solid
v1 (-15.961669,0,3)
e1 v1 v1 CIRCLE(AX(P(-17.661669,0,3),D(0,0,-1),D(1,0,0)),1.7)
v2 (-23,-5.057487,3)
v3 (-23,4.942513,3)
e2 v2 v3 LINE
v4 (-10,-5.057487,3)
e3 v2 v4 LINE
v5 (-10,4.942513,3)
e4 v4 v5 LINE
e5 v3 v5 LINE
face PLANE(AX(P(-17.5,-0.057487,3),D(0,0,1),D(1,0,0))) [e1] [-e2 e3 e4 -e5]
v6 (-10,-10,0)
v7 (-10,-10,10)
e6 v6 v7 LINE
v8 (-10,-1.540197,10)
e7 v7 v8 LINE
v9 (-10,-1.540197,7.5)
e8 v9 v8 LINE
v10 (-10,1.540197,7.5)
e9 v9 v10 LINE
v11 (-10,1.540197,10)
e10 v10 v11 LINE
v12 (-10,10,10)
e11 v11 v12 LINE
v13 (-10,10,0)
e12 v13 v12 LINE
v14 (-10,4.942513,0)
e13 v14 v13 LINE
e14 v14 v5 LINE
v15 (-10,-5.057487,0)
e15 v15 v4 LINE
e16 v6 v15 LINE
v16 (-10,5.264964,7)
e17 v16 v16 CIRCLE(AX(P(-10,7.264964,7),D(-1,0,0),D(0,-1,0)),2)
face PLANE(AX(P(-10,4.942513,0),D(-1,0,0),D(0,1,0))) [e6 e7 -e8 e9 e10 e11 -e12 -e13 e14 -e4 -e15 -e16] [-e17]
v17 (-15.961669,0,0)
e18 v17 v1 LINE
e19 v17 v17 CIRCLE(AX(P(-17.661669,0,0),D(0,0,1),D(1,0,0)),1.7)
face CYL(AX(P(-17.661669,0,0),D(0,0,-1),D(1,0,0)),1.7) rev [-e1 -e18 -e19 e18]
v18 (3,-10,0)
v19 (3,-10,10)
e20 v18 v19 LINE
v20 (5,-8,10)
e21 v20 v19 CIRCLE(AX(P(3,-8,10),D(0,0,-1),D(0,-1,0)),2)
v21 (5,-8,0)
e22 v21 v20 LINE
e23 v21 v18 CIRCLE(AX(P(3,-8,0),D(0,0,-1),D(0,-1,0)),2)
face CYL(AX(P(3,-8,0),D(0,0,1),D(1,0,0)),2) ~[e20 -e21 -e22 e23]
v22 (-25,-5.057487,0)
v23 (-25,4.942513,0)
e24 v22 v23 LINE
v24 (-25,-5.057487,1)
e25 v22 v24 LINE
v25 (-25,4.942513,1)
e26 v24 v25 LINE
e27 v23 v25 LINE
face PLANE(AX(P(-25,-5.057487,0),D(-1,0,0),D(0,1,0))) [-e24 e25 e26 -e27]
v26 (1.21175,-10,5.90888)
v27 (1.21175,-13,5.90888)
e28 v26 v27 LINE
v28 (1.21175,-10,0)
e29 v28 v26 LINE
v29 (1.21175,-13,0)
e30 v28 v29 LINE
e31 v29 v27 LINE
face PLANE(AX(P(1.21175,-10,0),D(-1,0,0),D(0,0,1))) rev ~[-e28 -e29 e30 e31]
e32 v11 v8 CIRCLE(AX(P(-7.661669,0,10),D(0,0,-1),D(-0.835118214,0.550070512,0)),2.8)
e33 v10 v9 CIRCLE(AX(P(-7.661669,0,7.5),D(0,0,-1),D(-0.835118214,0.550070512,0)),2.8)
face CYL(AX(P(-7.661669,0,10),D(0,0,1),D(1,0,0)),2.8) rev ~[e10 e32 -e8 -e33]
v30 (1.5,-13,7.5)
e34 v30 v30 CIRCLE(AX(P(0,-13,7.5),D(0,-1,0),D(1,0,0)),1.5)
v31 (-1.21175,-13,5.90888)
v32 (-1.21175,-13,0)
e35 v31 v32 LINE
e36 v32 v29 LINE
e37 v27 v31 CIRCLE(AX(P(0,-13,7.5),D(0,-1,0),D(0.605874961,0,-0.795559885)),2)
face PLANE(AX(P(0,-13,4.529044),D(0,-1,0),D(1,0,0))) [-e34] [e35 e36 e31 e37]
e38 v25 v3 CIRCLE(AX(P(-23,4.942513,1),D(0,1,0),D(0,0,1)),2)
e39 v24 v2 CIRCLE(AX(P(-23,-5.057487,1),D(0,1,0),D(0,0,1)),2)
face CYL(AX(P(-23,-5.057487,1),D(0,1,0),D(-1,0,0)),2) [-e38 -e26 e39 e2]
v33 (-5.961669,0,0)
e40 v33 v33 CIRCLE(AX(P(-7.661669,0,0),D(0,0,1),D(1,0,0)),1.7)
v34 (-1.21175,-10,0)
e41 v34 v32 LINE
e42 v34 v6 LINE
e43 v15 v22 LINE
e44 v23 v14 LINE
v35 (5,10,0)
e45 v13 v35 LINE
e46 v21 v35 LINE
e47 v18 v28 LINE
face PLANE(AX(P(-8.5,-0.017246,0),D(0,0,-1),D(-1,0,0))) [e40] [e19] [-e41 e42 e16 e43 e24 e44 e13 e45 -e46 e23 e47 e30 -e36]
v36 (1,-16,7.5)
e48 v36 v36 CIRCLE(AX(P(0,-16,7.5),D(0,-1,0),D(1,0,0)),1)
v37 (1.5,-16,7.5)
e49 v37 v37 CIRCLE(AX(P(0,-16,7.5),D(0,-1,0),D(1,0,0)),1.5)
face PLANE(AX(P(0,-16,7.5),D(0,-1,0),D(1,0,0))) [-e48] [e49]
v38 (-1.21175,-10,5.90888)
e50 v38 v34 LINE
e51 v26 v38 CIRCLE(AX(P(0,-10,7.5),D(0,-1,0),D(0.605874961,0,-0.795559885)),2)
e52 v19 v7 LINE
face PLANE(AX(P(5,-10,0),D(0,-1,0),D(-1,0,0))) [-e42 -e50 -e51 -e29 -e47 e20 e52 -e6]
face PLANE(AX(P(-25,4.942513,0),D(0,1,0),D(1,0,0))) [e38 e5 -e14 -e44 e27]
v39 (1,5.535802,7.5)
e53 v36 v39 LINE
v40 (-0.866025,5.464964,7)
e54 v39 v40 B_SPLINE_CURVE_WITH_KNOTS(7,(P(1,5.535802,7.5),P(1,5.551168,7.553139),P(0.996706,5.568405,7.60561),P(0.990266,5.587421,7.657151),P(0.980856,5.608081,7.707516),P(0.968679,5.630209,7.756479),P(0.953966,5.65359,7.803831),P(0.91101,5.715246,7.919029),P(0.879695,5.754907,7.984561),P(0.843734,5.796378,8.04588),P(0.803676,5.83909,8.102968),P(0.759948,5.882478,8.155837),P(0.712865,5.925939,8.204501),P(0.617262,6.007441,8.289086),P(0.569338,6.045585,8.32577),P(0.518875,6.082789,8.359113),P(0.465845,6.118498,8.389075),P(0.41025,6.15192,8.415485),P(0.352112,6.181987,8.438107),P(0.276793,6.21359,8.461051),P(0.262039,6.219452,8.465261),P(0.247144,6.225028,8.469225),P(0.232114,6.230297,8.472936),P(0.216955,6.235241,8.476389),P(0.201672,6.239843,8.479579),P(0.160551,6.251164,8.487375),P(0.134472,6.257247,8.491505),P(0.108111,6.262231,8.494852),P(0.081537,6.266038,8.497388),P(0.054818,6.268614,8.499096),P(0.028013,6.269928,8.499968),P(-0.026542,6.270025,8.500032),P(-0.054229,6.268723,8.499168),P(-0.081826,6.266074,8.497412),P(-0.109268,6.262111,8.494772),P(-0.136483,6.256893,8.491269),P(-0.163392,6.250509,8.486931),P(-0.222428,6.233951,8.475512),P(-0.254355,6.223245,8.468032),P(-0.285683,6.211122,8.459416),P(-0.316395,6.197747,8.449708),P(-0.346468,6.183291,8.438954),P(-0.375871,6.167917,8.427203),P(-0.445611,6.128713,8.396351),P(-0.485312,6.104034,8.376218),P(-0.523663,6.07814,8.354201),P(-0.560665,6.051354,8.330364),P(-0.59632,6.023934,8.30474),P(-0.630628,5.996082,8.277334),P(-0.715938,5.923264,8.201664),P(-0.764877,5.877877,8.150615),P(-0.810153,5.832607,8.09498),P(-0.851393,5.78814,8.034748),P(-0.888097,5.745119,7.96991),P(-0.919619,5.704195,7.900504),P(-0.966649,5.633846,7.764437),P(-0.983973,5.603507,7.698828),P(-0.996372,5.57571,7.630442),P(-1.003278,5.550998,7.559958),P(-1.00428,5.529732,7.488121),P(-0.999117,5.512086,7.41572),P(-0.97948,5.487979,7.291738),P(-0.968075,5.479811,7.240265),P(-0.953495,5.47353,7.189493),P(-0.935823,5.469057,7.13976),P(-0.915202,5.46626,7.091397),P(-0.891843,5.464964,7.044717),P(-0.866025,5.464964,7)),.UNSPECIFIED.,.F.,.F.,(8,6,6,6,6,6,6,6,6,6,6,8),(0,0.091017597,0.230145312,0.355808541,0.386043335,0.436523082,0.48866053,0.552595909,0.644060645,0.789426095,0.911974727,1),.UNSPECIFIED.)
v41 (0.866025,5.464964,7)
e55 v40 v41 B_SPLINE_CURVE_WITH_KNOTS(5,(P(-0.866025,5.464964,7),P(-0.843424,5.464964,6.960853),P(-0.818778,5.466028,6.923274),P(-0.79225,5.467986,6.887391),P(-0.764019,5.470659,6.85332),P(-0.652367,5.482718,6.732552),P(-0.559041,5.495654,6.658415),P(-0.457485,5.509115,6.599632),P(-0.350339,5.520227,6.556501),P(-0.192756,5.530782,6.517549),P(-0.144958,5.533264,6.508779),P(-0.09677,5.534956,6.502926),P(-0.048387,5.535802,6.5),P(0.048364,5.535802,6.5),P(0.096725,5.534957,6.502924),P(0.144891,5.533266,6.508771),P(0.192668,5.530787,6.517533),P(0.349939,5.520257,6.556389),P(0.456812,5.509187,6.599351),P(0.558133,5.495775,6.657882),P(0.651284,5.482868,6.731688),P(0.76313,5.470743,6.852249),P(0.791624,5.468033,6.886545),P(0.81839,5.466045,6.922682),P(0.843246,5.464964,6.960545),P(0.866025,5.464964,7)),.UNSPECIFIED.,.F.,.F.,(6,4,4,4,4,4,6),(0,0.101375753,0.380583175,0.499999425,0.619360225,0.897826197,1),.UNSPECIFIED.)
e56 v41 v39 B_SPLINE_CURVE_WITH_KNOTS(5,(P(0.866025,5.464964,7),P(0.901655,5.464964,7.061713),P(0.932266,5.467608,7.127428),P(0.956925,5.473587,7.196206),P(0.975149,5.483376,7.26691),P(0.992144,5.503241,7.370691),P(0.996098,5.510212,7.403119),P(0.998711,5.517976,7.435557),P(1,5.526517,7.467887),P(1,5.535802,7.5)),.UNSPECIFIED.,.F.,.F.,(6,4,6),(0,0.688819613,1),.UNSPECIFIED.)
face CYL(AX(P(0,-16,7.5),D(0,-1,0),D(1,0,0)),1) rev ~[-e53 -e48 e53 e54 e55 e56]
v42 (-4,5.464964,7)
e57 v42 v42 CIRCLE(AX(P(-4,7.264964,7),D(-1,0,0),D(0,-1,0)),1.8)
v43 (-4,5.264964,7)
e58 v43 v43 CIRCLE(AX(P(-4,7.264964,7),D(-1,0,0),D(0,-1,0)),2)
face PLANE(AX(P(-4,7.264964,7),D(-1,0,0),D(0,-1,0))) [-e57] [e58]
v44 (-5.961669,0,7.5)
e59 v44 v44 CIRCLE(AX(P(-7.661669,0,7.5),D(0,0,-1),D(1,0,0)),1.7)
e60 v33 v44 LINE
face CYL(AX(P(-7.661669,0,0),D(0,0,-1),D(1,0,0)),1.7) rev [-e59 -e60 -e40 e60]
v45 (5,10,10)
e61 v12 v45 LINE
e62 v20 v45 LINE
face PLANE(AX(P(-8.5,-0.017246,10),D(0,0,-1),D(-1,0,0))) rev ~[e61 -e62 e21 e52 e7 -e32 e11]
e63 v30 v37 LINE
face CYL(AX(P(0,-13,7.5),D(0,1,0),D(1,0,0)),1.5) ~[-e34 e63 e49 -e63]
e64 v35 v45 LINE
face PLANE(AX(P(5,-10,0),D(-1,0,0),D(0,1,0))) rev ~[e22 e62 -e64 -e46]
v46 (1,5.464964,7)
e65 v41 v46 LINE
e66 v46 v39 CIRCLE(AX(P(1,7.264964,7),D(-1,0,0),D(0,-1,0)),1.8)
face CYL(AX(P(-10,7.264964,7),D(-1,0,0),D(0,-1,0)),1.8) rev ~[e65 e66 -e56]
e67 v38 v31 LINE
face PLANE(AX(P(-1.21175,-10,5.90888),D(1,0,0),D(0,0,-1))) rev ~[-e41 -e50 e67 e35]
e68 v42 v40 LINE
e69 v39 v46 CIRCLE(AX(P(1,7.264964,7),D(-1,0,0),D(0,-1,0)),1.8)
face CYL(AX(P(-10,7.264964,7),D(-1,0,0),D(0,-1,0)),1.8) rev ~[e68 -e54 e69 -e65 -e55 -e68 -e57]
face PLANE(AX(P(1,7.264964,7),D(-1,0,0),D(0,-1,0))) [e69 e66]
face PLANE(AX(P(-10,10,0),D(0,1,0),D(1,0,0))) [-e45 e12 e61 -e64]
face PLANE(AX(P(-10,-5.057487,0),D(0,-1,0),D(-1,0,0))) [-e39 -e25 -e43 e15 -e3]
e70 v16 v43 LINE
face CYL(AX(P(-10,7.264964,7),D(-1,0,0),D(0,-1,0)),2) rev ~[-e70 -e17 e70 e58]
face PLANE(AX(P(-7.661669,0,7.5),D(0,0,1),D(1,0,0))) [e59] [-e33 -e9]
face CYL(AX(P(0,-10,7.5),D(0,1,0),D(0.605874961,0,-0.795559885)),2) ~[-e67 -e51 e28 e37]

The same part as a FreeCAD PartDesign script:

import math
import FreeCAD as App
import Part
import Sketcher


def edges_at(feature, points):
    """Names of the edges that pass closest to the given points."""
    edges = feature.Shape.Edges
    near = lambda p: min(range(len(edges)), key=lambda i: edges[i].distToShape(Part.Vertex(*p))[0])
    return sorted({f"Edge{near(p) + 1}" for p in points})

doc = App.newDocument("Part")
params = doc.addObject("Spreadsheet::Sheet", "Params")
for row, (alias, value) in enumerate([
    ("sketch1_diameter", "3.4 mm"),
    ("sketch1_width", "15 mm"),
    ("sketch1_height", "10 mm"),
    ("sketch1_height2", "20 mm"),
    ("pad1_length", "10 mm"),
    ("sketch2_width", "15 mm"),
    ("sketch2_height", "10 mm"),
    ("pocket1_length", "7 mm"),
    ("sketch3_radius", "2 mm"),
    ("pad2_length", "3 mm"),
    ("sketch4_diameter", "5.6 mm"),
    ("pocket2_length", "2.5 mm"),
    ("sketch5_diameter", "3 mm"),
    ("pad3_length", "3 mm"),
    ("sketch6_diameter", "2 mm"),
    ("pocket3_length", "24 mm"),
    ("sketch7_diameter", "3.6 mm"),
    ("pocket4_length", "11 mm"),
    ("sketch8_diameter", "4 mm"),
    ("pocket5_length", "6 mm"),
    ("fillet_radius", "2 mm"),
    ("fillet2_radius", "2 mm"),
], start=1):
    params.set(f"A{row}", alias)
    params.set(f"B{row}", "=" + value)
    params.setAlias(f"B{row}", alias)

body = doc.addObject("PartDesign::Body", "Body")

# Sketch on XY plane
sketch1 = body.newObject("Sketcher::SketchObject", "Sketch")
sketch1.AttachmentSupport = (doc.getObject("XY_Plane"), [""])
sketch1.MapMode = "FlatFace"
sketch1.addGeometry(Part.LineSegment(App.Vector(5, 10, 0), App.Vector(-10, 10, 0)), False)
sketch1.addGeometry(Part.LineSegment(App.Vector(-10, 10, 0), App.Vector(-10, 4.9, 0)), False)
sketch1.addGeometry(Part.LineSegment(App.Vector(-10, 4.9, 0), App.Vector(-25, 4.9, 0)), False)
sketch1.addGeometry(Part.LineSegment(App.Vector(-25, 4.9, 0), App.Vector(-25, -5.1, 0)), False)
sketch1.addGeometry(Part.LineSegment(App.Vector(-25, -5.1, 0), App.Vector(-10, -5.1, 0)), False)
sketch1.addGeometry(Part.LineSegment(App.Vector(-10, -5.1, 0), App.Vector(-10, -10, 0)), False)
sketch1.addGeometry(Part.LineSegment(App.Vector(-10, -10, 0), App.Vector(5, -10, 0)), False)
sketch1.addGeometry(Part.LineSegment(App.Vector(5, -10, 0), App.Vector(5, 10, 0)), False)
sketch1.addGeometry(Part.Circle(App.Vector(-7.7, 0, 0), App.Vector(0, 0, 1), 1.7), False)
sketch1.addGeometry(Part.Circle(App.Vector(-17.7, 0, 0), App.Vector(0, 0, 1), 1.7), False)
sketch1.addConstraint(Sketcher.Constraint("Coincident", 0, 2, 1, 1))
sketch1.addConstraint(Sketcher.Constraint("Coincident", 1, 2, 2, 1))
sketch1.addConstraint(Sketcher.Constraint("Coincident", 2, 2, 3, 1))
sketch1.addConstraint(Sketcher.Constraint("Coincident", 3, 2, 4, 1))
sketch1.addConstraint(Sketcher.Constraint("Coincident", 4, 2, 5, 1))
sketch1.addConstraint(Sketcher.Constraint("Coincident", 5, 2, 6, 1))
sketch1.addConstraint(Sketcher.Constraint("Coincident", 6, 2, 7, 1))
sketch1.addConstraint(Sketcher.Constraint("Coincident", 7, 2, 0, 1))
sketch1.addConstraint(Sketcher.Constraint("Horizontal", 0))
sketch1.addConstraint(Sketcher.Constraint("Vertical", 1))
sketch1.addConstraint(Sketcher.Constraint("Horizontal", 2))
sketch1.addConstraint(Sketcher.Constraint("Vertical", 3))
sketch1.addConstraint(Sketcher.Constraint("Horizontal", 4))
sketch1.addConstraint(Sketcher.Constraint("Vertical", 5))
sketch1.addConstraint(Sketcher.Constraint("Horizontal", 6))
sketch1.addConstraint(Sketcher.Constraint("Vertical", 7))
sketch1.addConstraint(Sketcher.Constraint("Equal", 8, 9))
sketch1.addConstraint(Sketcher.Constraint("Symmetric", 0, 2, 5, 2, -1))
sketch1.addConstraint(Sketcher.Constraint("PointOnObject", 8, 3, -1))
sketch1.addConstraint(Sketcher.Constraint("PointOnObject", 9, 3, -1))
sketch1.addConstraint(Sketcher.Constraint("Equal", 0, 2))
sketch1.addConstraint(Sketcher.Constraint("Diameter", 8, 3.4))
sketch1.addConstraint(Sketcher.Constraint("DistanceX", 0, 2, 0, 1, 15.0))
sketch1.addConstraint(Sketcher.Constraint("DistanceY", 3, 2, 3, 1, 10.0))
sketch1.addConstraint(Sketcher.Constraint("DistanceY", 7, 1, 7, 2, 20.0))
sketch1.addConstraint(Sketcher.Constraint("DistanceX", 0, 2, -1, 1, 10.0))
sketch1.addConstraint(Sketcher.Constraint("DistanceX", 9, 3, 8, 3, 10.0))
sketch1.addConstraint(Sketcher.Constraint("DistanceY", 1, 2, 1, 1, 5.057487))
sketch1.addConstraint(Sketcher.Constraint("DistanceX", 8, 3, -1, 1, 7.661669))
sketch1.setExpression("Constraints[21]", "Params.sketch1_diameter")
sketch1.setExpression("Constraints[22]", "Params.sketch1_width")
sketch1.setExpression("Constraints[23]", "Params.sketch1_height")
sketch1.setExpression("Constraints[24]", "Params.sketch1_height2")
pad1 = body.newObject("PartDesign::Pad", "Pad")
pad1.Profile = sketch1
pad1.setExpression("Length", "Params.pad1_length")

# Sketch on XY plane
sketch2 = body.newObject("Sketcher::SketchObject", "Sketch001")
sketch2.AttachmentSupport = (doc.getObject("XY_Plane"), [""])
sketch2.MapMode = "FlatFace"
sketch2.AttachmentOffset = App.Placement(App.Vector(0, 0, 10), App.Rotation())
sketch2.addGeometry(Part.LineSegment(App.Vector(-25, 5, 0), App.Vector(-25, -5, 0)), False)
sketch2.addGeometry(Part.LineSegment(App.Vector(-25, -5, 0), App.Vector(-10, -5, 0)), False)
sketch2.addGeometry(Part.LineSegment(App.Vector(-10, -5, 0), App.Vector(-10, 5, 0)), False)
sketch2.addGeometry(Part.LineSegment(App.Vector(-10, 5, 0), App.Vector(-25, 5, 0)), False)
sketch2.addConstraint(Sketcher.Constraint("Coincident", 0, 2, 1, 1))
sketch2.addConstraint(Sketcher.Constraint("Coincident", 1, 2, 2, 1))
sketch2.addConstraint(Sketcher.Constraint("Coincident", 2, 2, 3, 1))
sketch2.addConstraint(Sketcher.Constraint("Coincident", 3, 2, 0, 1))
sketch2.addConstraint(Sketcher.Constraint("Vertical", 0))
sketch2.addConstraint(Sketcher.Constraint("Horizontal", 1))
sketch2.addConstraint(Sketcher.Constraint("Vertical", 2))
sketch2.addConstraint(Sketcher.Constraint("Horizontal", 3))
sketch2.addConstraint(Sketcher.Constraint("DistanceX", 1, 1, 1, 2, 15.0))
sketch2.addConstraint(Sketcher.Constraint("DistanceY", 0, 2, 0, 1, 10.0))
sketch2.addConstraint(Sketcher.Constraint("DistanceX", 0, 2, -1, 1, 25.0))
sketch2.addConstraint(Sketcher.Constraint("DistanceY", 0, 2, -1, 1, 5.057487))
sketch2.setExpression("Constraints[8]", "Params.sketch2_width")
sketch2.setExpression("Constraints[9]", "Params.sketch2_height")
pocket1 = body.newObject("PartDesign::Pocket", "Pocket")
pocket1.Profile = sketch2
pocket1.setExpression("Length", "Params.pocket1_length")

# Sketch on XZ plane
sketch3 = body.newObject("Sketcher::SketchObject", "Sketch002")
sketch3.AttachmentSupport = (doc.getObject("XZ_Plane"), [""])
sketch3.MapMode = "FlatFace"
sketch3.AttachmentOffset = App.Placement(App.Vector(0, 0, 10), App.Rotation())
sketch3.addGeometry(Part.ArcOfCircle(Part.Circle(App.Vector(0, 7.5, 0), App.Vector(0, 0, 1), 2), math.radians(-53), math.radians(233)), False)
sketch3.addGeometry(Part.LineSegment(App.Vector(-1.2, 5.9, 0), App.Vector(-1.2, 0, 0)), False)
sketch3.addGeometry(Part.LineSegment(App.Vector(-1.2, 0, 0), App.Vector(1.2, 0, 0)), False)
sketch3.addGeometry(Part.LineSegment(App.Vector(1.2, 0, 0), App.Vector(1.2, 5.9, 0)), False)
sketch3.addConstraint(Sketcher.Constraint("Coincident", 0, 2, 1, 1))
sketch3.addConstraint(Sketcher.Constraint("Coincident", 1, 2, 2, 1))
sketch3.addConstraint(Sketcher.Constraint("Coincident", 2, 2, 3, 1))
sketch3.addConstraint(Sketcher.Constraint("Coincident", 3, 2, 0, 1))
sketch3.addConstraint(Sketcher.Constraint("Vertical", 1))
sketch3.addConstraint(Sketcher.Constraint("Horizontal", 2))
sketch3.addConstraint(Sketcher.Constraint("Vertical", 3))
sketch3.addConstraint(Sketcher.Constraint("Symmetric", 1, 2, 2, 2, -1, 1))
sketch3.addConstraint(Sketcher.Constraint("PointOnObject", 0, 3, -2))
sketch3.addConstraint(Sketcher.Constraint("Radius", 0, 2.0))
sketch3.addConstraint(Sketcher.Constraint("DistanceY", -1, 1, 0, 3, 7.5))
sketch3.addConstraint(Sketcher.Constraint("DistanceX", 2, 1, 2, 2, 2.4235))
sketch3.setExpression("Constraints[9]", "Params.sketch3_radius")
pad2 = body.newObject("PartDesign::Pad", "Pad001")
pad2.Profile = sketch3
pad2.setExpression("Length", "Params.pad2_length")

# Sketch on XY plane
sketch4 = body.newObject("Sketcher::SketchObject", "Sketch003")
sketch4.AttachmentSupport = (doc.getObject("XY_Plane"), [""])
sketch4.MapMode = "FlatFace"
sketch4.AttachmentOffset = App.Placement(App.Vector(0, 0, 10), App.Rotation())
sketch4.addGeometry(Part.Circle(App.Vector(-7.7, 0, 0), App.Vector(0, 0, 1), 2.8), False)
sketch4.addConstraint(Sketcher.Constraint("PointOnObject", 0, 3, -1))
sketch4.addConstraint(Sketcher.Constraint("Diameter", 0, 5.6))
sketch4.addConstraint(Sketcher.Constraint("DistanceX", 0, 3, -1, 1, 7.661669))
sketch4.setExpression("Constraints[1]", "Params.sketch4_diameter")
pocket2 = body.newObject("PartDesign::Pocket", "Pocket001")
pocket2.Profile = sketch4
pocket2.setExpression("Length", "Params.pocket2_length")

# Sketch on XZ plane
sketch5 = body.newObject("Sketcher::SketchObject", "Sketch004")
sketch5.AttachmentSupport = (doc.getObject("XZ_Plane"), [""])
sketch5.MapMode = "FlatFace"
sketch5.AttachmentOffset = App.Placement(App.Vector(0, 0, 13), App.Rotation())
sketch5.addGeometry(Part.Circle(App.Vector(0, 7.5, 0), App.Vector(0, 0, 1), 1.5), False)
sketch5.addConstraint(Sketcher.Constraint("PointOnObject", 0, 3, -2))
sketch5.addConstraint(Sketcher.Constraint("Diameter", 0, 3.0))
sketch5.addConstraint(Sketcher.Constraint("DistanceY", -1, 1, 0, 3, 7.5))
sketch5.setExpression("Constraints[1]", "Params.sketch5_diameter")
pad3 = body.newObject("PartDesign::Pad", "Pad002")
pad3.Profile = sketch5
pad3.setExpression("Length", "Params.pad3_length")

# Sketch on XZ plane
sketch6 = body.newObject("Sketcher::SketchObject", "Sketch005")
sketch6.AttachmentSupport = (doc.getObject("XZ_Plane"), [""])
sketch6.MapMode = "FlatFace"
sketch6.AttachmentOffset = App.Placement(App.Vector(0, 0, 16), App.Rotation())
sketch6.addGeometry(Part.Circle(App.Vector(0, 7.5, 0), App.Vector(0, 0, 1), 1), False)
sketch6.addConstraint(Sketcher.Constraint("PointOnObject", 0, 3, -2))
sketch6.addConstraint(Sketcher.Constraint("Diameter", 0, 2.0))
sketch6.addConstraint(Sketcher.Constraint("DistanceY", -1, 1, 0, 3, 7.5))
sketch6.setExpression("Constraints[1]", "Params.sketch6_diameter")
pocket3 = body.newObject("PartDesign::Pocket", "Pocket002")
pocket3.Profile = sketch6
pocket3.setExpression("Length", "Params.pocket3_length")

# Sketch on YZ plane
sketch7 = body.newObject("Sketcher::SketchObject", "Sketch006")
sketch7.AttachmentSupport = (doc.getObject("YZ_Plane"), [""])
sketch7.MapMode = "FlatFace"
sketch7.AttachmentOffset = App.Placement(App.Vector(0, 0, -10), App.Rotation())
sketch7.addGeometry(Part.Circle(App.Vector(7.3, 7, 0), App.Vector(0, 0, 1), 1.8), False)
sketch7.addConstraint(Sketcher.Constraint("Diameter", 0, 3.6))
sketch7.addConstraint(Sketcher.Constraint("DistanceY", -1, 1, 0, 3, 7.0))
sketch7.addConstraint(Sketcher.Constraint("DistanceX", -1, 1, 0, 3, 7.264964))
sketch7.setExpression("Constraints[0]", "Params.sketch7_diameter")
pocket4 = body.newObject("PartDesign::Pocket", "Pocket003")
pocket4.Profile = sketch7
pocket4.setExpression("Length", "Params.pocket4_length")
pocket4.Reversed = True

# Sketch on YZ plane
sketch8 = body.newObject("Sketcher::SketchObject", "Sketch007")
sketch8.AttachmentSupport = (doc.getObject("YZ_Plane"), [""])
sketch8.MapMode = "FlatFace"
sketch8.AttachmentOffset = App.Placement(App.Vector(0, 0, -10), App.Rotation())
sketch8.addGeometry(Part.Circle(App.Vector(7.3, 7, 0), App.Vector(0, 0, 1), 2), False)
sketch8.addConstraint(Sketcher.Constraint("Diameter", 0, 4.0))
sketch8.addConstraint(Sketcher.Constraint("DistanceY", -1, 1, 0, 3, 7.0))
sketch8.addConstraint(Sketcher.Constraint("DistanceX", -1, 1, 0, 3, 7.264964))
sketch8.setExpression("Constraints[0]", "Params.sketch8_diameter")
pocket5 = body.newObject("PartDesign::Pocket", "Pocket004")
pocket5.Profile = sketch8
pocket5.setExpression("Length", "Params.pocket5_length")
pocket5.Reversed = True
doc.recompute()

fillet = body.newObject("PartDesign::Fillet", "Fillet")
fillet.Base = (pocket5, edges_at(pocket5, [(5, -10, 5)]))
fillet.setExpression("Radius", "Params.fillet_radius")
doc.recompute()

fillet2 = body.newObject("PartDesign::Fillet", "Fillet001")
fillet2.Base = (fillet, edges_at(fillet, [(-25, -0.057, 3)]))
fillet2.setExpression("Radius", "Params.fillet2_radius")

doc.recompute()
